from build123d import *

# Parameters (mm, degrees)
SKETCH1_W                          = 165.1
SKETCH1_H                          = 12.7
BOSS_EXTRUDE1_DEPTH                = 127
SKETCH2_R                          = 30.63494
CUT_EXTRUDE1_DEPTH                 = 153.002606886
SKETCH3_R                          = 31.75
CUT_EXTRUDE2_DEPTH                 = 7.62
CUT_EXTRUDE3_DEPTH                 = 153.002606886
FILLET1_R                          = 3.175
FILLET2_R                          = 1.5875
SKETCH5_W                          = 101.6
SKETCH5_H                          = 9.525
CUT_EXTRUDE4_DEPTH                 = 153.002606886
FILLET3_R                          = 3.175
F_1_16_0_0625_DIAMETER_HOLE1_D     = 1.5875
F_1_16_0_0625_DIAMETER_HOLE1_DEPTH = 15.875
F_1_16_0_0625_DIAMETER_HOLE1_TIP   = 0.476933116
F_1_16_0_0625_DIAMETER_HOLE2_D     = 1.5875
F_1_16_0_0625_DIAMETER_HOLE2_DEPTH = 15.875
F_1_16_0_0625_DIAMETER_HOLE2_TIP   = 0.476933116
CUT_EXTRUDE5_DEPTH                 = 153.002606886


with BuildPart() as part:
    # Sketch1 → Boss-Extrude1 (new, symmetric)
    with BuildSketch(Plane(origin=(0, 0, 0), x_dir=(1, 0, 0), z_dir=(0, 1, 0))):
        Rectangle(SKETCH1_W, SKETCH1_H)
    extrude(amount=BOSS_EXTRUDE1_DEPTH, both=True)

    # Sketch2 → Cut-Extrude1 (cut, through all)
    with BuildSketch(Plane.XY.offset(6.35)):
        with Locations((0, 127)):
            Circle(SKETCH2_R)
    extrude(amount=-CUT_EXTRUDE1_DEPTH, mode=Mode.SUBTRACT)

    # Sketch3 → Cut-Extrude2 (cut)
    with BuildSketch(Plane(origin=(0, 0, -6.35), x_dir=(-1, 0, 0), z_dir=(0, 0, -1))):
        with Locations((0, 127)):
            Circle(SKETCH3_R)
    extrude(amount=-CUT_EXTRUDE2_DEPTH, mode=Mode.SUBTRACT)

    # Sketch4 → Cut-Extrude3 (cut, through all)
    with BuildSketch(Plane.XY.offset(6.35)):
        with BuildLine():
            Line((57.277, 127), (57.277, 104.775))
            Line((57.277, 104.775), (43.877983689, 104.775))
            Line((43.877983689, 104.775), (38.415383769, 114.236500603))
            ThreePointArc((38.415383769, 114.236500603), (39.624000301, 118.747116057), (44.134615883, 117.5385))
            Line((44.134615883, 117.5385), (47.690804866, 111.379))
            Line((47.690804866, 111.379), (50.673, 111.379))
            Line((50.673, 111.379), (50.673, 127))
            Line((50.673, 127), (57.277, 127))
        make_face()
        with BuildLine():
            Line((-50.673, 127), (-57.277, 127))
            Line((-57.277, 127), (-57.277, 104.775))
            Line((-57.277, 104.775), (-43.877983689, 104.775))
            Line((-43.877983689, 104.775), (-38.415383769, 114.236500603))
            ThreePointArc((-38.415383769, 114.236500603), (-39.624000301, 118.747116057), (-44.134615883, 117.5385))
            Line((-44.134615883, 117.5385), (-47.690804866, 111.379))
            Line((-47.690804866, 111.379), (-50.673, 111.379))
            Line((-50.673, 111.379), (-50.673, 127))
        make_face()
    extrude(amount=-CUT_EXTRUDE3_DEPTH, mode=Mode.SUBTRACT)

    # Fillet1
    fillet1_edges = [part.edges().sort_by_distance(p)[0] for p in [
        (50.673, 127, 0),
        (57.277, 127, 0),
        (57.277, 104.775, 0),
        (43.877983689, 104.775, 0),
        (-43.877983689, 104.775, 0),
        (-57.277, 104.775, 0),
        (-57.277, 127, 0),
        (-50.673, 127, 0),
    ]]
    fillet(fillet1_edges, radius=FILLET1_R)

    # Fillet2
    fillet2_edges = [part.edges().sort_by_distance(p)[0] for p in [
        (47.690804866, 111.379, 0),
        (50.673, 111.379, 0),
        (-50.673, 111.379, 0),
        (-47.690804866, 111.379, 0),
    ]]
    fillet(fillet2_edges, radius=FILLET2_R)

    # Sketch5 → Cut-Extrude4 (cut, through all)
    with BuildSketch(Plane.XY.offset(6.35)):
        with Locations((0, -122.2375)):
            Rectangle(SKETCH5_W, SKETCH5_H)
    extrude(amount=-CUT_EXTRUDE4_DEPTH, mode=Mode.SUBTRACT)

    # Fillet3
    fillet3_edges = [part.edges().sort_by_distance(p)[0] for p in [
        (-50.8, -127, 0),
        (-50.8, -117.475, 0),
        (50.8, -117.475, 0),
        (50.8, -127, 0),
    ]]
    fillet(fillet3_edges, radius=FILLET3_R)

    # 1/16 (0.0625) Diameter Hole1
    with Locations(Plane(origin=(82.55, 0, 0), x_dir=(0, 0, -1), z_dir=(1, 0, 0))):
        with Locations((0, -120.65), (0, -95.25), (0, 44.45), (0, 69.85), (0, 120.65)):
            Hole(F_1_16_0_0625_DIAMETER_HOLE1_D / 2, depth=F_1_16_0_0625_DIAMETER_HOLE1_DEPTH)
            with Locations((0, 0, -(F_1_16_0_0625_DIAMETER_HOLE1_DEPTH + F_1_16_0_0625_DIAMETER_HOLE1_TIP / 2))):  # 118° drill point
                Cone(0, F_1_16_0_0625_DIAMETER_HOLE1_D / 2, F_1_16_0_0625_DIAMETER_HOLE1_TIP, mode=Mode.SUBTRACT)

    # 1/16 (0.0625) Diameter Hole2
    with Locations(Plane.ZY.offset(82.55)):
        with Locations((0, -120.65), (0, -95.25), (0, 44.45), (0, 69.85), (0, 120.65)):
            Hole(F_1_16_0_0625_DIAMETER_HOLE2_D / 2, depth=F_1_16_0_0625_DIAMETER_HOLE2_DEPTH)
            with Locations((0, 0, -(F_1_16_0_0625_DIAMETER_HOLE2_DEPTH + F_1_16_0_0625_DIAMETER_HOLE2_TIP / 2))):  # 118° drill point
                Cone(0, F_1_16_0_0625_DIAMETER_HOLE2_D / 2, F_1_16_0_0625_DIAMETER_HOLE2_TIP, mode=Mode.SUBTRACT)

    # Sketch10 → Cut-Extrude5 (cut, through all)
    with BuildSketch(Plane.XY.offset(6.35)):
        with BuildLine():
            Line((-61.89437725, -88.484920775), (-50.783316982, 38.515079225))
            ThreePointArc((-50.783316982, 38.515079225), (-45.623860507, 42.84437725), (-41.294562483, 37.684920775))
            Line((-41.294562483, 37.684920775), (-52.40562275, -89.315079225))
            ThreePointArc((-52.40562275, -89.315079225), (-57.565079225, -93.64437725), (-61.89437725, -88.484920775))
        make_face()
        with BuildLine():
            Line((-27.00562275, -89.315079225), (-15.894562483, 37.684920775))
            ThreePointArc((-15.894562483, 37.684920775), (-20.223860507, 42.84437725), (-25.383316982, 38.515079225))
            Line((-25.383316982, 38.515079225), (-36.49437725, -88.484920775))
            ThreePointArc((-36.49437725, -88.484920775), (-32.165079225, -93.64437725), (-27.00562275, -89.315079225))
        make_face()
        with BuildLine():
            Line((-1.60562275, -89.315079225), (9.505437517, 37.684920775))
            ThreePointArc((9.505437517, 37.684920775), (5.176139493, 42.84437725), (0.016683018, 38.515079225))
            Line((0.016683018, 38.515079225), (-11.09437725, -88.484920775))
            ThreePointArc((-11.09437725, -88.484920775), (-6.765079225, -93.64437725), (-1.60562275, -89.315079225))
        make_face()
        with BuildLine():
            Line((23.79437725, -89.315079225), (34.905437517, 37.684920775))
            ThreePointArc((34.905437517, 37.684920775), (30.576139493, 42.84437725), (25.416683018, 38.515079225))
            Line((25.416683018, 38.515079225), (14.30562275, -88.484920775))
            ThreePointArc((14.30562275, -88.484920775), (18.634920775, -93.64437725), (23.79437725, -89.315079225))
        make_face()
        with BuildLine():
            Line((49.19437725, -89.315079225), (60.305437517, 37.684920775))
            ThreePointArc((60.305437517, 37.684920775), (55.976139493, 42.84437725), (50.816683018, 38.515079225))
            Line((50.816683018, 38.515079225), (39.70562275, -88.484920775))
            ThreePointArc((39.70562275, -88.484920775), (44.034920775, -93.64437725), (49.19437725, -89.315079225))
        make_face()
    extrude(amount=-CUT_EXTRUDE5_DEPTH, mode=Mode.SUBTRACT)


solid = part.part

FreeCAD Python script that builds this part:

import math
import FreeCAD as App
import Part
import Sketcher
from FreeCAD import Vector
Q = App.Units.Quantity


def edges_at(feature, points):
    """Names of the edges that pass closest to the given points."""
    edges = feature.Shape.Edges
    near = lambda p: min(range(len(edges)), key=lambda i: edges[i].distToShape(Part.Vertex(*p))[0])
    return sorted({f"Edge{near(p) + 1}" for p in points})

doc = App.newDocument("Part")
body = doc.addObject("PartDesign::Body", "Body")

sketch1 = body.newObject("Sketcher::SketchObject", "Sketch")
sketch1.AttachmentSupport = (doc.getObject("XZ_Plane"), [""])
sketch1.MapMode = "FlatFace"
sketch1.addGeometry(Part.LineSegment(Vector(-83, -6, 0), Vector(-83, 6, 0)), False)
sketch1.addGeometry(Part.LineSegment(Vector(-83, 6, 0), Vector(83, 6, 0)), False)
sketch1.addGeometry(Part.LineSegment(Vector(83, 6, 0), Vector(83, -6, 0)), False)
sketch1.addGeometry(Part.LineSegment(Vector(83, -6, 0), Vector(-83, -6, 0)), False)
sketch1.addConstraint(Sketcher.Constraint("Coincident", 0, 2, 1, 1))
sketch1.addConstraint(Sketcher.Constraint("Coincident", 1, 2, 2, 1))
sketch1.addConstraint(Sketcher.Constraint("Coincident", 2, 2, 3, 1))
sketch1.addConstraint(Sketcher.Constraint("Coincident", 3, 2, 0, 1))
sketch1.addConstraint(Sketcher.Constraint("Vertical", 0))
sketch1.addConstraint(Sketcher.Constraint("Horizontal", 1))
sketch1.addConstraint(Sketcher.Constraint("Vertical", 2))
sketch1.addConstraint(Sketcher.Constraint("Horizontal", 3))
sketch1.addConstraint(Sketcher.Constraint("Symmetric", 0, 2, 2, 2, -1, 1))
sketch1.addConstraint(Sketcher.Constraint("DistanceX", 1, 1, 1, 2, Q("6.5 in")))
sketch1.addConstraint(Sketcher.Constraint("DistanceY", 0, 1, 0, 2, Q("0.5 in")))
pad1 = body.newObject("PartDesign::Pad", "Pad")
pad1.Profile = sketch1
pad1.Length = Q("10 in")
pad1.Midplane = True

sketch2 = body.newObject("Sketcher::SketchObject", "Sketch001")
sketch2.AttachmentSupport = (doc.getObject("XY_Plane"), [""])
sketch2.MapMode = "FlatFace"
sketch2.AttachmentOffset = App.Placement(Vector(0, 0, 0.25 * 25.4), App.Rotation())
sketch2.addGeometry(Part.Circle(Vector(0, 127, 0), Vector(0, 0, 1), 31), False)
sketch2.addConstraint(Sketcher.Constraint("PointOnObject", 0, 3, -2))
sketch2.addConstraint(Sketcher.Constraint("DistanceY", -1, 1, 0, 3, Q("5 in")))
sketch2.addConstraint(Sketcher.Constraint("Diameter", 0, Q("2.4122 in")))
pocket1 = body.newObject("PartDesign::Pocket", "Pocket")
pocket1.Profile = sketch2
pocket1.Type = "ThroughAll"

sketch3 = body.newObject("Sketcher::SketchObject", "Sketch002")
sketch3.AttachmentSupport = (doc.getObject("XY_Plane"), [""])
sketch3.MapMode = "FlatFace"
sketch3.AttachmentOffset = App.Placement(Vector(0, 0, -0.25 * 25.4), App.Rotation())
sketch3.addGeometry(Part.Circle(Vector(0, 127, 0), Vector(0, 0, 1), 32), False)
sketch3.addConstraint(Sketcher.Constraint("PointOnObject", 0, 3, -2))
sketch3.addConstraint(Sketcher.Constraint("Diameter", 0, Q("2.5 in")))
sketch3.addConstraint(Sketcher.Constraint("DistanceY", -1, 1, 0, 3, Q("5 in")))
pocket2 = body.newObject("PartDesign::Pocket", "Pocket001")
pocket2.Profile = sketch3
pocket2.Length = Q("0.3 in")
pocket2.Reversed = True

sketch4 = body.newObject("Sketcher::SketchObject", "Sketch003")
sketch4.AttachmentSupport = (doc.getObject("XY_Plane"), [""])
sketch4.MapMode = "FlatFace"
sketch4.AttachmentOffset = App.Placement(Vector(0, 0, 0.25 * 25.4), App.Rotation())
sketch4.addGeometry(Part.LineSegment(Vector(57.3, 104.8, 0), Vector(57.3, 127, 0)), False)
sketch4.addGeometry(Part.LineSegment(Vector(57.3, 127, 0), Vector(50.7, 127, 0)), False)
sketch4.addGeometry(Part.LineSegment(Vector(50.7, 127, 0), Vector(50.7, 111.4, 0)), False)
sketch4.addGeometry(Part.LineSegment(Vector(50.7, 111.4, 0), Vector(47.7, 111.4, 0)), False)
sketch4.addGeometry(Part.LineSegment(Vector(47.7, 111.4, 0), Vector(44.1, 117.5, 0)), False)
sketch4.addGeometry(Part.ArcOfCircle(Part.Circle(Vector(41.3, 115.9, 0), Vector(0, 0, 1), 3.3), math.radians(30), math.radians(210)), False)
sketch4.addGeometry(Part.LineSegment(Vector(38.4, 114.2, 0), Vector(43.9, 104.8, 0)), False)
sketch4.addGeometry(Part.LineSegment(Vector(43.9, 104.8, 0), Vector(57.3, 104.8, 0)), False)
sketch4.addGeometry(Part.LineSegment(Vector(-50.7, 127, 0), Vector(-57.3, 127, 0)), False)
sketch4.addGeometry(Part.LineSegment(Vector(-57.3, 127, 0), Vector(-57.3, 104.8, 0)), False)
sketch4.addGeometry(Part.LineSegment(Vector(-57.3, 104.8, 0), Vector(-43.9, 104.8, 0)), False)
sketch4.addGeometry(Part.LineSegment(Vector(-43.9, 104.8, 0), Vector(-38.4, 114.2, 0)), False)
sketch4.addGeometry(Part.ArcOfCircle(Part.Circle(Vector(-41.3, 115.9, 0), Vector(0, 0, 1), 3.3), math.radians(-30), math.radians(150)), False)
sketch4.addGeometry(Part.LineSegment(Vector(-44.1, 117.5, 0), Vector(-47.7, 111.4, 0)), False)
sketch4.addGeometry(Part.LineSegment(Vector(-47.7, 111.4, 0), Vector(-50.7, 111.4, 0)), False)
sketch4.addGeometry(Part.LineSegment(Vector(-50.7, 111.4, 0), Vector(-50.7, 127, 0)), False)
sketch4.addConstraint(Sketcher.Constraint("Coincident", 0, 2, 1, 1))
sketch4.addConstraint(Sketcher.Constraint("Coincident", 1, 2, 2, 1))
sketch4.addConstraint(Sketcher.Constraint("Coincident", 2, 2, 3, 1))
sketch4.addConstraint(Sketcher.Constraint("Coincident", 3, 2, 4, 1))
sketch4.addConstraint(Sketcher.Constraint("Tangent", 4, 2, 5, 1))
sketch4.addConstraint(Sketcher.Constraint("Tangent", 5, 2, 6, 1))
sketch4.addConstraint(Sketcher.Constraint("Coincident", 6, 2, 7, 1))
sketch4.addConstraint(Sketcher.Constraint("Coincident", 7, 2, 0, 1))
sketch4.addConstraint(Sketcher.Constraint("Coincident", 8, 2, 9, 1))
sketch4.addConstraint(Sketcher.Constraint("Coincident", 9, 2, 10, 1))
sketch4.addConstraint(Sketcher.Constraint("Coincident", 10, 2, 11, 1))
sketch4.addConstraint(Sketcher.Constraint("Tangent", 11, 2, 12, 1))
sketch4.addConstraint(Sketcher.Constraint("Tangent", 12, 2, 13, 1))
sketch4.addConstraint(Sketcher.Constraint("Coincident", 13, 2, 14, 1))
sketch4.addConstraint(Sketcher.Constraint("Coincident", 14, 2, 15, 1))
sketch4.addConstraint(Sketcher.Constraint("Coincident", 15, 2, 8, 1))
sketch4.addConstraint(Sketcher.Constraint("Vertical", 0))
sketch4.addConstraint(Sketcher.Constraint("Horizontal", 1))
sketch4.addConstraint(Sketcher.Constraint("Vertical", 2))
sketch4.addConstraint(Sketcher.Constraint("Horizontal", 3))
sketch4.addConstraint(Sketcher.Constraint("Horizontal", 7))
sketch4.addConstraint(Sketcher.Constraint("Horizontal", 8))
sketch4.addConstraint(Sketcher.Constraint("Vertical", 9))
sketch4.addConstraint(Sketcher.Constraint("Horizontal", 10))
sketch4.addConstraint(Sketcher.Constraint("Horizontal", 14))
sketch4.addConstraint(Sketcher.Constraint("Vertical", 15))
sketch4.addConstraint(Sketcher.Constraint("Equal", 5, 12))
sketch4.addConstraint(Sketcher.Constraint("Symmetric", 5, 3, 12, 3, -2))
sketch4.addConstraint(Sketcher.Constraint("Symmetric", 0, 2, 8, 2, -2))
sketch4.addConstraint(Sketcher.Constraint("Symmetric", 6, 2, 10, 2, -2))
sketch4.addConstraint(Sketcher.Constraint("Symmetric", 3, 2, 13, 2, -2))
sketch4.addConstraint(Sketcher.Constraint("Parallel", 4, 6))
sketch4.addConstraint(Sketcher.Constraint("Equal", 1, 8))
sketch4.addConstraint(Sketcher.Constraint("Radius", 5, Q("0.13 in")))
sketch4.addConstraint(Sketcher.Constraint("DistanceY", -1, 1, 0, 2, Q("5 in")))
sketch4.addConstraint(Sketcher.Constraint("Angle", 4, Q("120 deg")))
sketch4.addConstraint(Sketcher.Constraint("DistanceX", 1, 2, 1, 1, Q("0.26 in")))
sketch4.addConstraint(Sketcher.Constraint("DistanceY", 0, 1, 0, 2, Q("0.875 in")))
sketch4.addConstraint(Sketcher.Constraint("DistanceY", 2, 2, 2, 1, Q("0.615 in")))
sketch4.addConstraint(Sketcher.Constraint("DistanceX", 12, 3, 5, 3, Q("3.25 in")))
sketch4.addConstraint(Sketcher.Constraint("DistanceX", 5, 3, 0, 2, Q("0.63 in")))
sketch4.addConstraint(Sketcher.Constraint("DistanceY", -1, 1, 5, 3, Q("4.5625 in")))
pocket3 = body.newObject("PartDesign::Pocket", "Pocket002")
pocket3.Profile = sketch4
pocket3.Type = "ThroughAll"
doc.recompute()

fillet = body.newObject("PartDesign::Fillet", "Fillet")
fillet.Base = (pocket3, edges_at(pocket3, [
    (50.673, 127, 0),
    (57.277, 127, 0),
    (57.277, 104.775, 0),
    (43.878, 104.775, 0),
    (-43.878, 104.775, 0),
    (-57.277, 104.775, 0),
    (-57.277, 127, 0),
    (-50.673, 127, 0),
]))
fillet.Radius = Q("0.125 in")
doc.recompute()

fillet2 = body.newObject("PartDesign::Fillet", "Fillet001")
fillet2.Base = (fillet, edges_at(fillet, [
    (47.691, 111.379, 0),
    (50.673, 111.379, 0),
    (-50.673, 111.379, 0),
    (-47.691, 111.379, 0),
]))
fillet2.Radius = Q("0.0625 in")

sketch5 = body.newObject("Sketcher::SketchObject", "Sketch004")
sketch5.AttachmentSupport = (doc.getObject("XY_Plane"), [""])
sketch5.MapMode = "FlatFace"
sketch5.AttachmentOffset = App.Placement(Vector(0, 0, 0.25 * 25.4), App.Rotation())
sketch5.addGeometry(Part.LineSegment(Vector(-51, -117, 0), Vector(-51, -127, 0)), False)
sketch5.addGeometry(Part.LineSegment(Vector(-51, -127, 0), Vector(51, -127, 0)), False)
sketch5.addGeometry(Part.LineSegment(Vector(51, -127, 0), Vector(51, -117, 0)), False)
sketch5.addGeometry(Part.LineSegment(Vector(51, -117, 0), Vector(-51, -117, 0)), False)
sketch5.addConstraint(Sketcher.Constraint("Coincident", 0, 2, 1, 1))
sketch5.addConstraint(Sketcher.Constraint("Coincident", 1, 2, 2, 1))
sketch5.addConstraint(Sketcher.Constraint("Coincident", 2, 2, 3, 1))
sketch5.addConstraint(Sketcher.Constraint("Coincident", 3, 2, 0, 1))
sketch5.addConstraint(Sketcher.Constraint("Vertical", 0))
sketch5.addConstraint(Sketcher.Constraint("Horizontal", 1))
sketch5.addConstraint(Sketcher.Constraint("Vertical", 2))
sketch5.addConstraint(Sketcher.Constraint("Horizontal", 3))
sketch5.addConstraint(Sketcher.Constraint("DistanceX", 1, 1, 1, 2, Q("4 in")))
sketch5.addConstraint(Sketcher.Constraint("DistanceX", 0, 2, -1, 1, Q("2 in")))
sketch5.addConstraint(Sketcher.Constraint("DistanceY", 0, 2, -1, 1, Q("5 in")))
sketch5.addConstraint(Sketcher.Constraint("DistanceY", 0, 2, 0, 1, Q("0.375 in")))
pocket4 = body.newObject("PartDesign::Pocket", "Pocket003")
pocket4.Profile = sketch5
pocket4.Type = "ThroughAll"
doc.recompute()

fillet3 = body.newObject("PartDesign::Fillet", "Fillet002")
fillet3.Base = (pocket4, edges_at(pocket4, [
    (-50.8, -127, 0),
    (-50.8, -117.475, 0),
    (50.8, -117.475, 0),
    (50.8, -127, 0),
]))
fillet3.Radius = Q("0.125 in")

sketch6 = body.newObject("Sketcher::SketchObject", "Sketch005")
sketch6.AttachmentSupport = (doc.getObject("YZ_Plane"), [""])
sketch6.MapMode = "FlatFace"
sketch6.AttachmentOffset = App.Placement(Vector(0, 0, 3.25 * 25.4), App.Rotation())
sketch6.addGeometry(Part.Circle(Vector(-120.7, 0, 0), Vector(0, 0, 1), 0.8), False)
sketch6.addGeometry(Part.Circle(Vector(-95.2, 0, 0), Vector(0, 0, 1), 0.8), False)
sketch6.addGeometry(Part.Circle(Vector(44.5, 0, 0), Vector(0, 0, 1), 0.8), False)
sketch6.addGeometry(Part.Circle(Vector(69.8, 0, 0), Vector(0, 0, 1), 0.8), False)
sketch6.addGeometry(Part.Circle(Vector(120.7, 0, 0), Vector(0, 0, 1), 0.8), False)
sketch6.addConstraint(Sketcher.Constraint("Equal", 0, 1))
sketch6.addConstraint(Sketcher.Constraint("Equal", 1, 2))
sketch6.addConstraint(Sketcher.Constraint("Equal", 2, 3))
sketch6.addConstraint(Sketcher.Constraint("Equal", 3, 4))
sketch6.addConstraint(Sketcher.Constraint("Symmetric", 0, 3, 4, 3, -1, 1))
sketch6.addConstraint(Sketcher.Constraint("PointOnObject", 0, 3, -1))
sketch6.addConstraint(Sketcher.Constraint("PointOnObject", 1, 3, -1))
sketch6.addConstraint(Sketcher.Constraint("PointOnObject", 2, 3, -1))
sketch6.addConstraint(Sketcher.Constraint("PointOnObject", 3, 3, -1))
sketch6.addConstraint(Sketcher.Constraint("Diameter", 0, Q("0.0625 in")))
sketch6.addConstraint(Sketcher.Constraint("DistanceX", 0, 3, 1, 3, Q("1 in")))
sketch6.addConstraint(Sketcher.Constraint("DistanceX", 2, 3, 3, 3, Q("1 in")))
sketch6.addConstraint(Sketcher.Constraint("DistanceX", 3, 3, 4, 3, Q("2 in")))
sketch6.addConstraint(Sketcher.Constraint("DistanceX", 1, 3, 2, 3, Q("5.5 in")))
doc.recompute()
hole = body.newObject("PartDesign::Hole", "Hole")
hole.Profile = sketch6
hole.ThreadType = "None"
hole.Diameter = Q("0.0625 in")
hole.DepthType = "Dimension"
hole.Depth = Q("0.625 in")
hole.DrillPoint = "Angled"
hole.DrillPointAngle = 118

sketch7 = body.newObject("Sketcher::SketchObject", "Sketch006")
sketch7.AttachmentSupport = (doc.getObject("YZ_Plane"), [""])
sketch7.MapMode = "FlatFace"
sketch7.AttachmentOffset = App.Placement(Vector(0, 0, -3.25 * 25.4), App.Rotation())
sketch7.addGeometry(Part.Circle(Vector(-120.7, 0, 0), Vector(0, 0, 1), 0.8), False)
sketch7.addGeometry(Part.Circle(Vector(-95.2, 0, 0), Vector(0, 0, 1), 0.8), False)
sketch7.addGeometry(Part.Circle(Vector(44.5, 0, 0), Vector(0, 0, 1), 0.8), False)
sketch7.addGeometry(Part.Circle(Vector(69.8, 0, 0), Vector(0, 0, 1), 0.8), False)
sketch7.addGeometry(Part.Circle(Vector(120.7, 0, 0), Vector(0, 0, 1), 0.8), False)
sketch7.addConstraint(Sketcher.Constraint("Equal", 0, 1))
sketch7.addConstraint(Sketcher.Constraint("Equal", 1, 2))
sketch7.addConstraint(Sketcher.Constraint("Equal", 2, 3))
sketch7.addConstraint(Sketcher.Constraint("Equal", 3, 4))
sketch7.addConstraint(Sketcher.Constraint("Symmetric", 0, 3, 4, 3, -1, 1))
sketch7.addConstraint(Sketcher.Constraint("PointOnObject", 0, 3, -1))
sketch7.addConstraint(Sketcher.Constraint("PointOnObject", 1, 3, -1))
sketch7.addConstraint(Sketcher.Constraint("PointOnObject", 2, 3, -1))
sketch7.addConstraint(Sketcher.Constraint("PointOnObject", 3, 3, -1))
sketch7.addConstraint(Sketcher.Constraint("Diameter", 0, Q("0.0625 in")))
sketch7.addConstraint(Sketcher.Constraint("DistanceX", 0, 3, 1, 3, Q("1 in")))
sketch7.addConstraint(Sketcher.Constraint("DistanceX", 2, 3, 3, 3, Q("1 in")))
sketch7.addConstraint(Sketcher.Constraint("DistanceX", 3, 3, 4, 3, Q("2 in")))
sketch7.addConstraint(Sketcher.Constraint("DistanceX", 1, 3, 2, 3, Q("5.5 in")))
doc.recompute()
hole2 = body.newObject("PartDesign::Hole", "Hole001")
hole2.Profile = sketch7
hole2.ThreadType = "None"
hole2.Diameter = Q("0.0625 in")
hole2.DepthType = "Dimension"
hole2.Depth = Q("0.625 in")
hole2.DrillPoint = "Angled"
hole2.DrillPointAngle = 118
hole2.Reversed = True

sketch8 = body.newObject("Sketcher::SketchObject", "Sketch007")
sketch8.AttachmentSupport = (doc.getObject("XY_Plane"), [""])
sketch8.MapMode = "FlatFace"
sketch8.AttachmentOffset = App.Placement(Vector(0, 0, 0.25 * 25.4), App.Rotation())
sketch8.addGeometry(Part.LineSegment(Vector(-50.8, 38.5, 0), Vector(-61.9, -88.5, 0)), False)
sketch8.addGeometry(Part.ArcOfCircle(Part.Circle(Vector(-57.1, -88.9, 0), Vector(0, 0, 1), 4.8), math.radians(175), math.radians(355)), False)
sketch8.addGeometry(Part.LineSegment(Vector(-52.4, -89.3, 0), Vector(-41.3, 37.7, 0)), False)
sketch8.addGeometry(Part.ArcOfCircle(Part.Circle(Vector(-46, 38.1, 0), Vector(0, 0, 1), 4.8), math.radians(-5), math.radians(175)), False)
sketch8.addGeometry(Part.LineSegment(Vector(-27, -89.3, 0), Vector(-15.9, 37.7, 0)), False)
sketch8.addGeometry(Part.ArcOfCircle(Part.Circle(Vector(-20.6, 38.1, 0), Vector(0, 0, 1), 4.8), math.radians(-5), math.radians(175)), False)
sketch8.addGeometry(Part.LineSegment(Vector(-25.4, 38.5, 0), Vector(-36.5, -88.5, 0)), False)
sketch8.addGeometry(Part.ArcOfCircle(Part.Circle(Vector(-31.8, -88.9, 0), Vector(0, 0, 1), 4.8), math.radians(175), math.radians(355)), False)
sketch8.addGeometry(Part.LineSegment(Vector(-1.6, -89.3, 0), Vector(9.5, 37.7, 0)), False)
sketch8.addGeometry(Part.ArcOfCircle(Part.Circle(Vector(4.8, 38.1, 0), Vector(0, 0, 1), 4.8), math.radians(-5), math.radians(175)), False)
sketch8.addGeometry(Part.LineSegment(Vector(0, 38.5, 0), Vector(-11.1, -88.5, 0)), False)
sketch8.addGeometry(Part.ArcOfCircle(Part.Circle(Vector(-6.3, -88.9, 0), Vector(0, 0, 1), 4.8), math.radians(175), math.radians(355)), False)
sketch8.addGeometry(Part.LineSegment(Vector(23.8, -89.3, 0), Vector(34.9, 37.7, 0)), False)
sketch8.addGeometry(Part.ArcOfCircle(Part.Circle(Vector(30.2, 38.1, 0), Vector(0, 0, 1), 4.8), math.radians(-5), math.radians(175)), False)
sketch8.addGeometry(Part.LineSegment(Vector(25.4, 38.5, 0), Vector(14.3, -88.5, 0)), False)
sketch8.addGeometry(Part.ArcOfCircle(Part.Circle(Vector(19.1, -88.9, 0), Vector(0, 0, 1), 4.8), math.radians(175), math.radians(355)), False)
sketch8.addGeometry(Part.LineSegment(Vector(49.2, -89.3, 0), Vector(60.3, 37.7, 0)), False)
sketch8.addGeometry(Part.ArcOfCircle(Part.Circle(Vector(55.6, 38.1, 0), Vector(0, 0, 1), 4.8), math.radians(-5), math.radians(175)), False)
sketch8.addGeometry(Part.LineSegment(Vector(50.8, 38.5, 0), Vector(39.7, -88.5, 0)), False)
sketch8.addGeometry(Part.ArcOfCircle(Part.Circle(Vector(44.5, -88.9, 0), Vector(0, 0, 1), 4.8), math.radians(175), math.radians(355)), False)
sketch8.addConstraint(Sketcher.Constraint("Tangent", 0, 2, 1, 1))
sketch8.addConstraint(Sketcher.Constraint("Tangent", 1, 2, 2, 1))
sketch8.addConstraint(Sketcher.Constraint("Tangent", 2, 2, 3, 1))
sketch8.addConstraint(Sketcher.Constraint("Tangent", 3, 2, 0, 1))
sketch8.addConstraint(Sketcher.Constraint("Tangent", 4, 2, 5, 1))
sketch8.addConstraint(Sketcher.Constraint("Tangent", 5, 2, 6, 1))
sketch8.addConstraint(Sketcher.Constraint("Tangent", 6, 2, 7, 1))
sketch8.addConstraint(Sketcher.Constraint("Tangent", 7, 2, 4, 1))
sketch8.addConstraint(Sketcher.Constraint("Tangent", 8, 2, 9, 1))
sketch8.addConstraint(Sketcher.Constraint("Tangent", 9, 2, 10, 1))
sketch8.addConstraint(Sketcher.Constraint("Tangent", 10, 2, 11, 1))
sketch8.addConstraint(Sketcher.Constraint("Tangent", 11, 2, 8, 1))
sketch8.addConstraint(Sketcher.Constraint("Tangent", 12, 2, 13, 1))
sketch8.addConstraint(Sketcher.Constraint("Tangent", 13, 2, 14, 1))
sketch8.addConstraint(Sketcher.Constraint("Tangent", 14, 2, 15, 1))
sketch8.addConstraint(Sketcher.Constraint("Tangent", 15, 2, 12, 1))
sketch8.addConstraint(Sketcher.Constraint("Tangent", 16, 2, 17, 1))
sketch8.addConstraint(Sketcher.Constraint("Tangent", 17, 2, 18, 1))
sketch8.addConstraint(Sketcher.Constraint("Tangent", 18, 2, 19, 1))
sketch8.addConstraint(Sketcher.Constraint("Tangent", 19, 2, 16, 1))
sketch8.addConstraint(Sketcher.Constraint("Equal", 1, 3))
sketch8.addConstraint(Sketcher.Constraint("Equal", 3, 5))
sketch8.addConstraint(Sketcher.Constraint("Equal", 5, 7))
sketch8.addConstraint(Sketcher.Constraint("Equal", 7, 9))
sketch8.addConstraint(Sketcher.Constraint("Equal", 9, 11))
sketch8.addConstraint(Sketcher.Constraint("Equal", 11, 13))
sketch8.addConstraint(Sketcher.Constraint("Equal", 13, 15))
sketch8.addConstraint(Sketcher.Constraint("Equal", 15, 17))
sketch8.addConstraint(Sketcher.Constraint("Equal", 17, 19))
sketch8.addConstraint(Sketcher.Constraint("Parallel", 2, 4))
sketch8.addConstraint(Sketcher.Constraint("Parallel", 6, 8))
sketch8.addConstraint(Sketcher.Constraint("Parallel", 10, 12))
sketch8.addConstraint(Sketcher.Constraint("Parallel", 14, 16))
sketch8.addConstraint(Sketcher.Constraint("Horizontal", 3, 3, 5, 3))
sketch8.addConstraint(Sketcher.Constraint("Horizontal", 1, 3, 7, 3))
sketch8.addConstraint(Sketcher.Constraint("Horizontal", 5, 3, 9, 3))
sketch8.addConstraint(Sketcher.Constraint("Horizontal", 7, 3, 11, 3))
sketch8.addConstraint(Sketcher.Constraint("Horizontal", 9, 3, 13, 3))
sketch8.addConstraint(Sketcher.Constraint("Horizontal", 11, 3, 15, 3))
sketch8.addConstraint(Sketcher.Constraint("Horizontal", 13, 3, 17, 3))
sketch8.addConstraint(Sketcher.Constraint("Horizontal", 15, 3, 19, 3))
sketch8.addConstraint(Sketcher.Constraint("Angle", 0, Q("-95 deg")))
sketch8.addConstraint(Sketcher.Constraint("Radius", 1, Q("0.1875 in")))
sketch8.addConstraint(Sketcher.Constraint("DistanceY", 1, 3, 3, 3, Q("5 in")))
sketch8.addConstraint(Sketcher.Constraint("DistanceX", 3, 3, 5, 3, Q("1 in")))
sketch8.addConstraint(Sketcher.Constraint("DistanceX", 5, 3, 9, 3, Q("1 in")))
sketch8.addConstraint(Sketcher.Constraint("DistanceX", 9, 3, 13, 3, Q("1 in")))
sketch8.addConstraint(Sketcher.Constraint("DistanceX", 13, 3, 17, 3, Q("1 in")))
sketch8.addConstraint(Sketcher.Constraint("DistanceY", 1, 3, -1, 1, Q("3.5 in")))
sketch8.addConstraint(Sketcher.Constraint("DistanceX", 1, 3, -1, 1, Q("2.25 in")))
pocket5 = body.newObject("PartDesign::Pocket", "Pocket004")
pocket5.Profile = sketch8
pocket5.Type = "ThroughAll"

doc.recompute()
